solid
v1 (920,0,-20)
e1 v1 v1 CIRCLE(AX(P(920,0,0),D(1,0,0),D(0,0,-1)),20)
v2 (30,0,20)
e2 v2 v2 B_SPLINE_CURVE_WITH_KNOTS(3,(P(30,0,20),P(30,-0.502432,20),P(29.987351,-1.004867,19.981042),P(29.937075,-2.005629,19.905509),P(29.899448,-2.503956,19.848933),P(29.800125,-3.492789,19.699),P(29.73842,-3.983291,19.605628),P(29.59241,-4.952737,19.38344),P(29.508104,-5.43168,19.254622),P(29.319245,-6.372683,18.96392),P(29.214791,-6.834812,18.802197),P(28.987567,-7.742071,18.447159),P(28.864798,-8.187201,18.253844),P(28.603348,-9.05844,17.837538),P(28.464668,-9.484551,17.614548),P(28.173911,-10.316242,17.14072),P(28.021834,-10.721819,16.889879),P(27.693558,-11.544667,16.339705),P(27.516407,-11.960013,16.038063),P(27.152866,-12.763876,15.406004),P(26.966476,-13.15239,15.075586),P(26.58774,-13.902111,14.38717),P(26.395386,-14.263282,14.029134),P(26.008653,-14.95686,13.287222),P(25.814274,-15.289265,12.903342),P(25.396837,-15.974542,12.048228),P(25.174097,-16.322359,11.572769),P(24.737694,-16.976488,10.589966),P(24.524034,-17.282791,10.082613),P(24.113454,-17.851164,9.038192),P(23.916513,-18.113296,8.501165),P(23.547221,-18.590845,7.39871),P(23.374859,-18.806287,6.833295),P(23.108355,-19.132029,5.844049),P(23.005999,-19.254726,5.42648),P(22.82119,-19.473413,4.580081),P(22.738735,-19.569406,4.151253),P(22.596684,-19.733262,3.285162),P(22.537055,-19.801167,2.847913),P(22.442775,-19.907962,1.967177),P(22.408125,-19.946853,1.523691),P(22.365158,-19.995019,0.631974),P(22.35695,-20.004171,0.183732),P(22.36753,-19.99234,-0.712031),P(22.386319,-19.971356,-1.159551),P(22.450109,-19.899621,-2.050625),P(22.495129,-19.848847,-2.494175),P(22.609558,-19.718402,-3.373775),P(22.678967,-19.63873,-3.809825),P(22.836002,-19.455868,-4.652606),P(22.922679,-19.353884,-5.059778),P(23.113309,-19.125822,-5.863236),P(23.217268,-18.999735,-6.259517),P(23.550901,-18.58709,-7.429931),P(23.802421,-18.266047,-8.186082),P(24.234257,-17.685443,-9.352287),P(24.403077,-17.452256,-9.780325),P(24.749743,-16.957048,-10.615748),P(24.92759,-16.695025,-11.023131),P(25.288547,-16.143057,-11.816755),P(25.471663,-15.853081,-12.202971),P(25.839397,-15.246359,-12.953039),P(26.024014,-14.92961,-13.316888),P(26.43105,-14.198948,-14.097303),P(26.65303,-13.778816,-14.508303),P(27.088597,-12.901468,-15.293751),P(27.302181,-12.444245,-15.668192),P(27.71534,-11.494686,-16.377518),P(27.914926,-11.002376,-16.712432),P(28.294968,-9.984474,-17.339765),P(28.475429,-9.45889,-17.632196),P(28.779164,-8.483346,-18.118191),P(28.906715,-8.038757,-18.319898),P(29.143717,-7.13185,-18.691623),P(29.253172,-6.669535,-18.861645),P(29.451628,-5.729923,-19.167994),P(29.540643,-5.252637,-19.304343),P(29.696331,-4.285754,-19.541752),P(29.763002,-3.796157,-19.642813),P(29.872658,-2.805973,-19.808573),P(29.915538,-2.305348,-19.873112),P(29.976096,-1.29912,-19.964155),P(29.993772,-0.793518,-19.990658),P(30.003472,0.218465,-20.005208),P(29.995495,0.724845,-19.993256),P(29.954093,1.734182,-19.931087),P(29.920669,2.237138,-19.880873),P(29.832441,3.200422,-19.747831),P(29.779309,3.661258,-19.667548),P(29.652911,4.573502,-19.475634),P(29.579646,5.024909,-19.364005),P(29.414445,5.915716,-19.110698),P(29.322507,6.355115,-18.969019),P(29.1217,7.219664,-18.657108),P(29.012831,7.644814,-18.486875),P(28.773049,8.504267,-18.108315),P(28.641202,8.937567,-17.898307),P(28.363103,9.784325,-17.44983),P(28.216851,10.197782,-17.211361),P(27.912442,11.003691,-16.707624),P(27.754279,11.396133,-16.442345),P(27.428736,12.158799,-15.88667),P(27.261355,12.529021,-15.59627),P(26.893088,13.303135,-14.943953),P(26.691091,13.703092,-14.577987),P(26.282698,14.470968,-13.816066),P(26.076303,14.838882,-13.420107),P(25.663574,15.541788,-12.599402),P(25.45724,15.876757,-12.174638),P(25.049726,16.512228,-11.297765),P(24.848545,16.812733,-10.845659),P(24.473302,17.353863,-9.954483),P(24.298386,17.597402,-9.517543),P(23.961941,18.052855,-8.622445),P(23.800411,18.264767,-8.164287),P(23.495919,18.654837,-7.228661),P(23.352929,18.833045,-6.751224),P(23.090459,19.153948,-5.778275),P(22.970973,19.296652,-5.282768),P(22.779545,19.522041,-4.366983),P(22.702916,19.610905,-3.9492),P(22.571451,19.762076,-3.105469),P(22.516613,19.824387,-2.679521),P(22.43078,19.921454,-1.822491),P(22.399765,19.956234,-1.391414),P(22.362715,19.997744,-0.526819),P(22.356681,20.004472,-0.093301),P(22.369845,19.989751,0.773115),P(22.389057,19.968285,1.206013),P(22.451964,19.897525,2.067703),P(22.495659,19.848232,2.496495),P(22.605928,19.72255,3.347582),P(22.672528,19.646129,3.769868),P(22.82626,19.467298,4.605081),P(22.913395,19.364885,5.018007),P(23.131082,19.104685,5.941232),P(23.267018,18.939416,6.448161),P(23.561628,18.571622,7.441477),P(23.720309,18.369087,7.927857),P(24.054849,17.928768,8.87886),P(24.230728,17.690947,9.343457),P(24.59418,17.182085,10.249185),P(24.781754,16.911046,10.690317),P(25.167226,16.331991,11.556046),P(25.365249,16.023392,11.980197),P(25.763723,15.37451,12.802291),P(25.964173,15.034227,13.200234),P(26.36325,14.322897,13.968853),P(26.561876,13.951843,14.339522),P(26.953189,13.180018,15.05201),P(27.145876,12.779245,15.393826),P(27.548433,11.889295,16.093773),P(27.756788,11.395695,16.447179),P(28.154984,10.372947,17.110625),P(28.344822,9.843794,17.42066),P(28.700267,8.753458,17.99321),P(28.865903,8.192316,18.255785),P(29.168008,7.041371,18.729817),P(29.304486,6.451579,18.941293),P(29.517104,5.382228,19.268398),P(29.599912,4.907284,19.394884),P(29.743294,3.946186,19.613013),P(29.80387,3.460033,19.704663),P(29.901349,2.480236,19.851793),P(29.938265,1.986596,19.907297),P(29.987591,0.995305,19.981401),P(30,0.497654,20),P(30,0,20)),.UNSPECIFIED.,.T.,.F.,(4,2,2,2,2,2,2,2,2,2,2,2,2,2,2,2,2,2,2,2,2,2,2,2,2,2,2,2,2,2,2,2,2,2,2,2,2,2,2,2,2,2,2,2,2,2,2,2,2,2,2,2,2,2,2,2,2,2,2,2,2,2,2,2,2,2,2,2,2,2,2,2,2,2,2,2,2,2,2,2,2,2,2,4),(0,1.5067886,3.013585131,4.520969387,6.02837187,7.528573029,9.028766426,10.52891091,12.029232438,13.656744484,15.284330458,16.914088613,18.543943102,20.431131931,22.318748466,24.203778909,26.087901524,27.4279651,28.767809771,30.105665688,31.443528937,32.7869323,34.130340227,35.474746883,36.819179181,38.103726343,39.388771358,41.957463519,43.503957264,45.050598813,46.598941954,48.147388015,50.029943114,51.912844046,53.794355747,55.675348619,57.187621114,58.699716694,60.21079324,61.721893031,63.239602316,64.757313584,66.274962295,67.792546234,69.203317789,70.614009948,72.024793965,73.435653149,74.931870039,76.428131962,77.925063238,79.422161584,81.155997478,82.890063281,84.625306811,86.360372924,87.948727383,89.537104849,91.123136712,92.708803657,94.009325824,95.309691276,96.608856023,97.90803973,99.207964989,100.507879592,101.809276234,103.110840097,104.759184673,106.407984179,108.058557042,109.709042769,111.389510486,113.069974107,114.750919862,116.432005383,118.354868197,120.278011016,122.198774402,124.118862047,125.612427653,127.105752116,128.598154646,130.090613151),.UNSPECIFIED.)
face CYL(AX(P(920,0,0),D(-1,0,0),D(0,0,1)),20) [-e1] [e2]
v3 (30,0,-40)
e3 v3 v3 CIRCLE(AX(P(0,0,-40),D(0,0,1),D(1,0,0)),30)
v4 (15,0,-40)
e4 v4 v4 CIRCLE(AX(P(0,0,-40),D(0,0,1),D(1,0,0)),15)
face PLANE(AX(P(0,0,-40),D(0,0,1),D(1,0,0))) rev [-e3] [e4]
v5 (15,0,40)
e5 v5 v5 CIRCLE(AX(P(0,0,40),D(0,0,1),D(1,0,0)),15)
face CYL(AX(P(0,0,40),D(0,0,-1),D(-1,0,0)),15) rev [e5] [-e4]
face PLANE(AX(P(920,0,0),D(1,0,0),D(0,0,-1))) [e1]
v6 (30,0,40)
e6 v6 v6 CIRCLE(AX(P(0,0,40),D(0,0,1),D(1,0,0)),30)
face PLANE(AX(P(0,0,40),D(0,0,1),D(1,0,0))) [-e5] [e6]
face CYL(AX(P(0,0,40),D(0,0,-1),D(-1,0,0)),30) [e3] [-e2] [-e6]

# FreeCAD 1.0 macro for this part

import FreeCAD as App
import Part
import Sketcher

doc = App.newDocument("Part")
body = doc.addObject("PartDesign::Body", "Body")

sketch1 = body.newObject("Sketcher::SketchObject", "Sketch")
sketch1.AttachmentSupport = (doc.getObject("XY_Plane"), [""])
sketch1.MapMode = "FlatFace"
sketch1.addGeometry([
    Part.Circle(App.Vector(0, 0, 0), App.Vector(0, 0, 1), 30),
    Part.Circle(App.Vector(0, 0, 0), App.Vector(0, 0, 1), 15),
], False)
sketch1.addConstraint([
    Sketcher.Constraint("Coincident", 0, 3, -1, 1),
    Sketcher.Constraint("Coincident", 1, 3, -1, 1),
    Sketcher.Constraint("Diameter", 0, 60.0),
    Sketcher.Constraint("Diameter", 1, 30.0),
])
pad1 = body.newObject("PartDesign::Pad", "Pad")
pad1.Profile = sketch1
pad1.Length = 80
pad1.Midplane = True

sketch2 = body.newObject("Sketcher::SketchObject", "Sketch001")
sketch2.AttachmentSupport = (doc.getObject("YZ_Plane"), [""])
sketch2.MapMode = "FlatFace"
sketch2.AttachmentOffset = App.Placement(App.Vector(0, 0, 20), App.Rotation())
sketch2.addGeometry(Part.Circle(App.Vector(0, 0, 0), App.Vector(0, 0, 1), 20), False)
sketch2.addConstraint([
    Sketcher.Constraint("Coincident", 0, 3, -1, 1),
    Sketcher.Constraint("Diameter", 0, 40.0),
])
pad2 = body.newObject("PartDesign::Pad", "Pad001")
pad2.Profile = sketch2
pad2.Length = 900

doc.recompute()
